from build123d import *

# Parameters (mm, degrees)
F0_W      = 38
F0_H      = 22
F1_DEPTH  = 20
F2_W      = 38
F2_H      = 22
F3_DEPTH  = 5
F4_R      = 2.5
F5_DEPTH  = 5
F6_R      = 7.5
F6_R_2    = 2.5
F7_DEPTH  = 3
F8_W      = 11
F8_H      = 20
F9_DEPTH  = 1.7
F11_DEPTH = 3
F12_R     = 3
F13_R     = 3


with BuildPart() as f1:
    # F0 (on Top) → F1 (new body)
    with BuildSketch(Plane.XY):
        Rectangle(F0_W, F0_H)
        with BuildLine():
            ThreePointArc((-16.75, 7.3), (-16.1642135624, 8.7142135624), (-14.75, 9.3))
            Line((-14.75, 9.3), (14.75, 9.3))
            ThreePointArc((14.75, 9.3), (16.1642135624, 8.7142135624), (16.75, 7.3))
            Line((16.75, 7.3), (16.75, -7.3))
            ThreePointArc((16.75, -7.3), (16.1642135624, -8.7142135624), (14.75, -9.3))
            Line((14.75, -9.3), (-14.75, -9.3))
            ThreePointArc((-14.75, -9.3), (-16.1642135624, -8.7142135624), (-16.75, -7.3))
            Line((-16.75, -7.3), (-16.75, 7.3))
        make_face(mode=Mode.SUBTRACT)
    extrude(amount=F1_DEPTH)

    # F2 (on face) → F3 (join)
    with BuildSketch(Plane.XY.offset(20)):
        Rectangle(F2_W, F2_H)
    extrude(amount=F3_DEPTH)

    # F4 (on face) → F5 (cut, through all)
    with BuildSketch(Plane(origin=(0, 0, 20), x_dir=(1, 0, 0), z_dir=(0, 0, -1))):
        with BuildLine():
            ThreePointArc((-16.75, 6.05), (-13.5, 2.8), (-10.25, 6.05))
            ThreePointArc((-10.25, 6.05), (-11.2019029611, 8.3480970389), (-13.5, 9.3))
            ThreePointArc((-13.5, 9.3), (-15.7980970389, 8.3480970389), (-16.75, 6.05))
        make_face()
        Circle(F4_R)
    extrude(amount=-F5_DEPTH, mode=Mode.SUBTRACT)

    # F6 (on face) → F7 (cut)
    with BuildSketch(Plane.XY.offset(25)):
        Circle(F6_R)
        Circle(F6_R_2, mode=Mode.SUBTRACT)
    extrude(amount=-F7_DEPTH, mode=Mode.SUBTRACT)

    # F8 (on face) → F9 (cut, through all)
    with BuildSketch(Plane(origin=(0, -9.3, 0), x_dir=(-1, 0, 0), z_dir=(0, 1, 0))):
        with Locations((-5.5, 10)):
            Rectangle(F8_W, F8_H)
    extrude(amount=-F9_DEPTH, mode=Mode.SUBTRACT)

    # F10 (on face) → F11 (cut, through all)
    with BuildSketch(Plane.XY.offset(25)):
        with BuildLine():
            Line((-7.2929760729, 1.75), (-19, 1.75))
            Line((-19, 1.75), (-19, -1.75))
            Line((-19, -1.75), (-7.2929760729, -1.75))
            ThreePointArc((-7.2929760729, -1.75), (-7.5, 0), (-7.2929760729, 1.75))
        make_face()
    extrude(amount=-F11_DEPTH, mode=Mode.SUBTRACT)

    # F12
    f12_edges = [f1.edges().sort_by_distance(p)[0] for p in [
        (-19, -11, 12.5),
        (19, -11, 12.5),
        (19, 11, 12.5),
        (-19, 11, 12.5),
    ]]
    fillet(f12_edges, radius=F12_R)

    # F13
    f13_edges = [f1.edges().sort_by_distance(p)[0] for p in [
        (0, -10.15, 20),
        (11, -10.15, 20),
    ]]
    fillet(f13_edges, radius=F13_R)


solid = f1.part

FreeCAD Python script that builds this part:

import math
import FreeCAD as App
import Part
import Sketcher
Q = App.Units.Quantity


def edges_at(feature, points):
    """Names of the edges that pass closest to the given points."""
    edges = feature.Shape.Edges
    near = lambda p: min(range(len(edges)), key=lambda i: edges[i].distToShape(Part.Vertex(*p))[0])
    return sorted({f"Edge{near(p) + 1}" for p in points})

doc = App.newDocument("Part")
body = doc.addObject("PartDesign::Body", "Body")

sketch1 = doc.addObject("Sketcher::SketchObject", "Sketch")
body.addObject(sketch1)
sketch1.AttachmentSupport = (doc.XY_Plane, [""])
sketch1.MapMode = "FlatFace"
sketch1.addGeometry([
    Part.LineSegment(App.Vector(-19, 11, 0), App.Vector(-19, -11, 0)),
    Part.LineSegment(App.Vector(-19, -11, 0), App.Vector(19, -11, 0)),
    Part.LineSegment(App.Vector(19, -11, 0), App.Vector(19, 11, 0)),
    Part.LineSegment(App.Vector(19, 11, 0), App.Vector(-19, 11, 0)),
    Part.LineSegment(App.Vector(-16.75, -7.3, 0), App.Vector(-16.75, 7.3, 0)),
    Part.ArcOfCircle(Part.Circle(App.Vector(-14.75, 7.3, 0), App.Vector(0, 0, 1), 2), math.radians(90), math.radians(180)),
    Part.LineSegment(App.Vector(-14.75, 9.3, 0), App.Vector(14.75, 9.3, 0)),
    Part.ArcOfCircle(Part.Circle(App.Vector(14.75, 7.3, 0), App.Vector(0, 0, 1), 2), math.radians(0), math.radians(90)),
    Part.LineSegment(App.Vector(16.75, 7.3, 0), App.Vector(16.75, -7.3, 0)),
    Part.ArcOfCircle(Part.Circle(App.Vector(14.75, -7.3, 0), App.Vector(0, 0, 1), 2), math.radians(-90), math.radians(0)),
    Part.LineSegment(App.Vector(14.75, -9.3, 0), App.Vector(-14.75, -9.3, 0)),
    Part.ArcOfCircle(Part.Circle(App.Vector(-14.75, -7.3, 0), App.Vector(0, 0, 1), 2), math.radians(180), math.radians(270)),
], False)
sketch1.addConstraint([
    Sketcher.Constraint("Coincident", 0, 2, 1, 1),
    Sketcher.Constraint("Coincident", 1, 2, 2, 1),
    Sketcher.Constraint("Coincident", 2, 2, 3, 1),
    Sketcher.Constraint("Coincident", 3, 2, 0, 1),
    Sketcher.Constraint("Tangent", 4, 2, 5, 2),
    Sketcher.Constraint("Tangent", 5, 1, 6, 1),
    Sketcher.Constraint("Tangent", 6, 2, 7, 2),
    Sketcher.Constraint("Tangent", 7, 1, 8, 1),
    Sketcher.Constraint("Tangent", 8, 2, 9, 2),
    Sketcher.Constraint("Tangent", 9, 1, 10, 1),
    Sketcher.Constraint("Tangent", 10, 2, 11, 2),
    Sketcher.Constraint("Tangent", 11, 1, 4, 1),
    Sketcher.Constraint("Vertical", 0),
    Sketcher.Constraint("Horizontal", 1),
    Sketcher.Constraint("Vertical", 2),
    Sketcher.Constraint("Horizontal", 3),
    Sketcher.Constraint("Vertical", 4),
    Sketcher.Constraint("Horizontal", 6),
    Sketcher.Constraint("Vertical", 8),
    Sketcher.Constraint("Horizontal", 10),
    Sketcher.Constraint("Equal", 5, 7),
    Sketcher.Constraint("Equal", 7, 9),
    Sketcher.Constraint("Equal", 9, 11),
    Sketcher.Constraint("Symmetric", 5, 3, 9, 3, -1, 1),
    Sketcher.Constraint("Symmetric", 0, 2, 2, 2, -1, 1),
    Sketcher.Constraint("Radius", 5, Q("2 mm")),
    Sketcher.Constraint("DistanceX", 1, 1, 1, 2, Q("38 mm")),
    Sketcher.Constraint("DistanceY", 0, 2, 0, 1, Q("22 mm")),
    Sketcher.Constraint("DistanceX", 6, 1, 6, 2, Q("29.5 mm")),
    Sketcher.Constraint("DistanceY", 4, 1, 4, 2, Q("14.6 mm")),
])
pad1 = doc.addObject("PartDesign::Pad", "Pad")
body.addObject(pad1)
pad1.Profile = sketch1
pad1.Length = 20

sketch2 = doc.addObject("Sketcher::SketchObject", "Sketch001")
body.addObject(sketch2)
sketch2.AttachmentSupport = (doc.XY_Plane, [""])
sketch2.MapMode = "FlatFace"
sketch2.AttachmentOffset = App.Placement(App.Vector(0, 0, 20), App.Rotation())
sketch2.addGeometry([
    Part.LineSegment(App.Vector(-19, 11, 0), App.Vector(-19, -11, 0)),
    Part.LineSegment(App.Vector(-19, -11, 0), App.Vector(19, -11, 0)),
    Part.LineSegment(App.Vector(19, -11, 0), App.Vector(19, 11, 0)),
    Part.LineSegment(App.Vector(19, 11, 0), App.Vector(-19, 11, 0)),
], False)
sketch2.addConstraint([
    Sketcher.Constraint("Coincident", 0, 2, 1, 1),
    Sketcher.Constraint("Coincident", 1, 2, 2, 1),
    Sketcher.Constraint("Coincident", 2, 2, 3, 1),
    Sketcher.Constraint("Coincident", 3, 2, 0, 1),
    Sketcher.Constraint("Vertical", 0),
    Sketcher.Constraint("Horizontal", 1),
    Sketcher.Constraint("Vertical", 2),
    Sketcher.Constraint("Horizontal", 3),
    Sketcher.Constraint("Symmetric", 0, 2, 2, 2, -1, 1),
    Sketcher.Constraint("DistanceX", 1, 1, 1, 2, Q("38 mm")),
    Sketcher.Constraint("DistanceY", 0, 2, 0, 1, Q("22 mm")),
])
pad2 = doc.addObject("PartDesign::Pad", "Pad001")
body.addObject(pad2)
pad2.Profile = sketch2
pad2.Length = 5

sketch3 = doc.addObject("Sketcher::SketchObject", "Sketch002")
body.addObject(sketch3)
sketch3.AttachmentSupport = (doc.XY_Plane, [""])
sketch3.MapMode = "FlatFace"
sketch3.AttachmentOffset = App.Placement(App.Vector(0, 0, 20), App.Rotation())
sketch3.addGeometry([
    Part.ArcOfCircle(Part.Circle(App.Vector(-13.5, -6.05, 0), App.Vector(0, 0, 1), 3.25), math.radians(0), math.radians(180)),
    Part.ArcOfCircle(Part.Circle(App.Vector(-13.5, -6.05, 0), App.Vector(0, 0, 1), 3.25), math.radians(-90), math.radians(0)),
    Part.ArcOfCircle(Part.Circle(App.Vector(-13.5, -6.05, 0), App.Vector(0, 0, 1), 3.25), math.radians(180), math.radians(270)),
    Part.Circle(App.Vector(0, 0, 0), App.Vector(0, 0, 1), 2.5),
], False)
sketch3.addConstraint([
    Sketcher.Constraint("Tangent", 0, 1, 1, 2),
    Sketcher.Constraint("Tangent", 1, 1, 2, 2),
    Sketcher.Constraint("Tangent", 2, 1, 0, 2),
    Sketcher.Constraint("Coincident", 3, 3, -1, 1),
    Sketcher.Constraint("Horizontal", 2, 3, 0, 1),
    Sketcher.Constraint("Horizontal", 0, 1, 2, 1),
    Sketcher.Constraint("Vertical", 2, 3, 1, 1),
    Sketcher.Constraint("Diameter", 3, Q("5 mm")),
    Sketcher.Constraint("Radius", 0, Q("3.25 mm")),
    Sketcher.Constraint("DistanceX", 0, 3, -1, 1, Q("13.5 mm")),
    Sketcher.Constraint("DistanceY", 1, 1, -1, 1, Q("9.3 mm")),
])
pocket1 = doc.addObject("PartDesign::Pocket", "Pocket")
body.addObject(pocket1)
pocket1.Profile = sketch3
pocket1.Type = "ThroughAll"
pocket1.Reversed = True

sketch4 = doc.addObject("Sketcher::SketchObject", "Sketch003")
body.addObject(sketch4)
sketch4.AttachmentSupport = (doc.XY_Plane, [""])
sketch4.MapMode = "FlatFace"
sketch4.AttachmentOffset = App.Placement(App.Vector(0, 0, 25), App.Rotation())
sketch4.addGeometry([
    Part.Circle(App.Vector(0, 0, 0), App.Vector(0, 0, 1), 7.5),
    Part.Circle(App.Vector(0, 0, 0), App.Vector(0, 0, 1), 2.5),
], False)
sketch4.addConstraint([
    Sketcher.Constraint("Coincident", 0, 3, -1, 1),
    Sketcher.Constraint("Coincident", 1, 3, -1, 1),
    Sketcher.Constraint("Diameter", 0, Q("15 mm")),
    Sketcher.Constraint("Diameter", 1, Q("5 mm")),
])
pocket2 = doc.addObject("PartDesign::Pocket", "Pocket001")
body.addObject(pocket2)
pocket2.Profile = sketch4
pocket2.Length = 3

sketch5 = doc.addObject("Sketcher::SketchObject", "Sketch004")
body.addObject(sketch5)
sketch5.AttachmentSupport = (doc.XZ_Plane, [""])
sketch5.MapMode = "FlatFace"
sketch5.AttachmentOffset = App.Placement(App.Vector(0, 0, 9.3), App.Rotation())
sketch5.addGeometry([
    Part.LineSegment(App.Vector(11, 20, 0), App.Vector(11, 0, 0)),
    Part.LineSegment(App.Vector(11, 0, 0), App.Vector(0, 0, 0)),
    Part.LineSegment(App.Vector(0, 0, 0), App.Vector(0, 20, 0)),
    Part.LineSegment(App.Vector(0, 20, 0), App.Vector(11, 20, 0)),
], False)
sketch5.addConstraint([
    Sketcher.Constraint("Coincident", 0, 2, 1, 1),
    Sketcher.Constraint("Coincident", 1, 2, 2, 1),
    Sketcher.Constraint("Coincident", 2, 2, 3, 1),
    Sketcher.Constraint("Coincident", 3, 2, 0, 1),
    Sketcher.Constraint("Vertical", 0),
    Sketcher.Constraint("Horizontal", 1),
    Sketcher.Constraint("Vertical", 2),
    Sketcher.Constraint("Horizontal", 3),
    Sketcher.Constraint("Coincident", 1, 2, -1, 1),
    Sketcher.Constraint("DistanceX", 1, 2, 1, 1, Q("11 mm")),
    Sketcher.Constraint("DistanceY", 0, 2, 0, 1, Q("20 mm")),
])
pocket3 = doc.addObject("PartDesign::Pocket", "Pocket002")
body.addObject(pocket3)
pocket3.Profile = sketch5
pocket3.Type = "ThroughAll"
pocket3.Reversed = True

sketch6 = doc.addObject("Sketcher::SketchObject", "Sketch005")
body.addObject(sketch6)
sketch6.AttachmentSupport = (doc.XY_Plane, [""])
sketch6.MapMode = "FlatFace"
sketch6.AttachmentOffset = App.Placement(App.Vector(0, 0, 25), App.Rotation())
sketch6.addGeometry([
    Part.LineSegment(App.Vector(-7.292976, 1.75, 0), App.Vector(-19, 1.75, 0)),
    Part.LineSegment(App.Vector(-19, 1.75, 0), App.Vector(-19, -1.75, 0)),
    Part.LineSegment(App.Vector(-19, -1.75, 0), App.Vector(-7.292976, -1.75, 0)),
    Part.ArcOfCircle(Part.Circle(App.Vector(0, 0, 0), App.Vector(0, 0, 1), 7.5), math.radians(166.506601), math.radians(193.493399)),
], False)
sketch6.addConstraint([
    Sketcher.Constraint("Coincident", 0, 2, 1, 1),
    Sketcher.Constraint("Coincident", 1, 2, 2, 1),
    Sketcher.Constraint("Coincident", 2, 2, 3, 2),
    Sketcher.Constraint("Coincident", 3, 1, 0, 1),
    Sketcher.Constraint("Horizontal", 0),
    Sketcher.Constraint("Vertical", 1),
    Sketcher.Constraint("Horizontal", 2),
    Sketcher.Constraint("Coincident", 3, 3, -1, 1),
    Sketcher.Constraint("Vertical", 2, 2, 3, 1),
    Sketcher.Constraint("Radius", 3, Q("7.5 mm")),
    Sketcher.Constraint("DistanceY", 1, 2, 1, 1, Q("3.5 mm")),
    Sketcher.Constraint("DistanceX", 0, 2, -1, 1, Q("19 mm")),
])
pocket4 = doc.addObject("PartDesign::Pocket", "Pocket003")
body.addObject(pocket4)
pocket4.Profile = sketch6
pocket4.Length = 3
doc.recompute()

fillet = doc.addObject("PartDesign::Fillet", "Fillet")
body.addObject(fillet)
fillet.Base = (pocket4, edges_at(pocket4, [
    (-19, -11, 12.5),
    (19, -11, 12.5),
    (19, 11, 12.5),
    (-19, 11, 12.5),
]))
fillet.Radius = 3
doc.recompute()

fillet2 = doc.addObject("PartDesign::Fillet", "Fillet001")
body.addObject(fillet2)
fillet2.Base = (fillet, edges_at(fillet, [(0, -10.15, 20), (11, -10.15, 20)]))
fillet2.Radius = 3

doc.recompute()
